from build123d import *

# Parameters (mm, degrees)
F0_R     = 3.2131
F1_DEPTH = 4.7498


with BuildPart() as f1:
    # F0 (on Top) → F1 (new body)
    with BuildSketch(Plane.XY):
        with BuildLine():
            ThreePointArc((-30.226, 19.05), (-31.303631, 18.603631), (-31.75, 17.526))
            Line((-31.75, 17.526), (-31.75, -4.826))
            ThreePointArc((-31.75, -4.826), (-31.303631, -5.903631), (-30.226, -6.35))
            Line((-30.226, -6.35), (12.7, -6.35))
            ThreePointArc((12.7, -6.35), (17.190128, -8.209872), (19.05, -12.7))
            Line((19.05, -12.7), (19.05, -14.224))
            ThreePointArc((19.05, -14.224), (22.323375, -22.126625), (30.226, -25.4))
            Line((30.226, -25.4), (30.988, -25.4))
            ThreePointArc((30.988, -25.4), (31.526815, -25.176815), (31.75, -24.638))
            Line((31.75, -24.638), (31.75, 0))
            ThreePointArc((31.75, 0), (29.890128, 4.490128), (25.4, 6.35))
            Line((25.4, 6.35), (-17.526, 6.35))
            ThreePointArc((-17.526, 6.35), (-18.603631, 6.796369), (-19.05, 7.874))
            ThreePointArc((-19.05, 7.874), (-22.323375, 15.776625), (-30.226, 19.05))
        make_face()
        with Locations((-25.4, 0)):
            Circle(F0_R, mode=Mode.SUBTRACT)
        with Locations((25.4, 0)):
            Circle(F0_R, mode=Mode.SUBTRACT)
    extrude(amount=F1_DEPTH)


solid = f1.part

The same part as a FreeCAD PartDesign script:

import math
import FreeCAD as App
import Part
import Sketcher
from FreeCAD import Vector
Q = App.Units.Quantity

doc = App.newDocument("Part")
params = doc.addObject("Spreadsheet::Sheet", "Params")
for row, (alias, value) in enumerate([
    ("sketch1_radius", "0.06 in"),
    ("sketch1_radius2", "0.25 in"),
    ("sketch1_radius3", "0.4400001 in"),
    ("sketch1_radius4", "0.03 in"),
    ("sketch1_diameter", "0.253 in"),
    ("pad1_length", "0.187 in"),
], start=1):
    params.set(f"A{row}", alias)
    params.set(f"B{row}", "=" + value)
    params.setAlias(f"B{row}", alias)

body = doc.addObject("PartDesign::Body", "Body")

# Sketch on XY plane
sketch1 = doc.addObject("Sketcher::SketchObject", "Sketch")
body.addObject(sketch1)
sketch1.AttachmentSupport = (doc.XY_Plane, [""])
sketch1.MapMode = "FlatFace"
sketch1.addGeometry([
    Part.ArcOfCircle(Part.Circle(Vector(-30.2, 17.5, 0), Vector(0, 0, 1), 1.5), math.radians(90), math.radians(180)),  # 0
    Part.LineSegment(Vector(-31.8, 17.5, 0), Vector(-31.8, -4.8, 0)),  # 1
    Part.ArcOfCircle(Part.Circle(Vector(-30.2, -4.8, 0), Vector(0, 0, 1), 1.5), math.radians(180), math.radians(270)),  # 2
    Part.LineSegment(Vector(-30.2, -6.3, 0), Vector(12.7, -6.3, 0)),  # 3
    Part.ArcOfCircle(Part.Circle(Vector(12.7, -12.7, 0), Vector(0, 0, 1), 6.4), math.radians(0), math.radians(90)),  # 4
    Part.LineSegment(Vector(19.1, -12.7, 0), Vector(19.1, -14.2, 0)),  # 5
    Part.ArcOfCircle(Part.Circle(Vector(30.2, -14.2, 0), Vector(0, 0, 1), 11.2), math.radians(-180), math.radians(-90)),  # 6
    Part.LineSegment(Vector(30.2, -25.4, 0), Vector(31, -25.4, 0)),  # 7
    Part.ArcOfCircle(Part.Circle(Vector(31, -24.6, 0), Vector(0, 0, 1), 0.8), math.radians(-90), math.radians(0)),  # 8
    Part.LineSegment(Vector(31.8, -24.6, 0), Vector(31.8, 0, 0)),  # 9
    Part.ArcOfCircle(Part.Circle(Vector(25.4, 0, 0), Vector(0, 0, 1), 6.4), math.radians(0), math.radians(90)),  # 10
    Part.LineSegment(Vector(25.4, 6.3, 0), Vector(-17.5, 6.3, 0)),  # 11
    Part.ArcOfCircle(Part.Circle(Vector(-17.5, 7.9, 0), Vector(0, 0, 1), 1.5), math.radians(180), math.radians(270)),  # 12
    Part.ArcOfCircle(Part.Circle(Vector(-30.2, 7.9, 0), Vector(0, 0, 1), 11.2), math.radians(0), math.radians(90)),  # 13
    Part.Circle(Vector(-25.4, 0, 0), Vector(0, 0, 1), 3.2),  # 14
    Part.Circle(Vector(25.4, 0, 0), Vector(0, 0, 1), 3.2),  # 15
], False)
sketch1.addConstraint([
    Sketcher.Constraint("Tangent", 0, 2, 1, 1),
    Sketcher.Constraint("Tangent", 1, 2, 2, 1),
    Sketcher.Constraint("Tangent", 2, 2, 3, 1),
    Sketcher.Constraint("Tangent", 3, 2, 4, 2),
    Sketcher.Constraint("Tangent", 4, 1, 5, 1),
    Sketcher.Constraint("Tangent", 5, 2, 6, 1),
    Sketcher.Constraint("Tangent", 6, 2, 7, 1),
    Sketcher.Constraint("Tangent", 7, 2, 8, 1),
    Sketcher.Constraint("Tangent", 8, 2, 9, 1),
    Sketcher.Constraint("Tangent", 9, 2, 10, 1),
    Sketcher.Constraint("Tangent", 10, 2, 11, 1),
    Sketcher.Constraint("Tangent", 11, 2, 12, 2),
    Sketcher.Constraint("Tangent", 12, 1, 13, 1),
    Sketcher.Constraint("Tangent", 13, 2, 0, 1),
    Sketcher.Constraint("Vertical", 1),
    Sketcher.Constraint("Horizontal", 3),
    Sketcher.Constraint("Vertical", 5),
    Sketcher.Constraint("Horizontal", 7),
    Sketcher.Constraint("Vertical", 9),
    Sketcher.Constraint("Horizontal", 11),
    Sketcher.Constraint("Coincident", 15, 3, 10, 3),
    Sketcher.Constraint("Equal", 0, 2),
    Sketcher.Constraint("Equal", 4, 10),
    Sketcher.Constraint("Equal", 2, 12),
    Sketcher.Constraint("Equal", 6, 13),
    Sketcher.Constraint("Equal", 14, 15),
    Sketcher.Constraint("Symmetric", 10, 3, 14, 3, -1, 1),
    Sketcher.Constraint("PointOnObject", 10, 3, -1),
    Sketcher.Constraint("Horizontal", 12, 3, 13, 3),
    Sketcher.Constraint("Vertical", 2, 3, 13, 3),
    Sketcher.Constraint("Equal", 3, 11),
    Sketcher.Constraint("Radius", 0, Q("0.06 in")),
    Sketcher.Constraint("Radius", 4, Q("0.25 in")),
    Sketcher.Constraint("Radius", 6, Q("0.4400001 in")),
    Sketcher.Constraint("Radius", 8, Q("0.03 in")),
    Sketcher.Constraint("Diameter", 14, Q("0.253 in")),
    Sketcher.Constraint("DistanceX", -1, 1, 10, 3, Q("1 in")),
    Sketcher.Constraint("DistanceY", 6, 2, -1, 1, Q("1 in")),
    Sketcher.Constraint("DistanceX", 3, 1, 3, 2, Q("1.69 in")),
    Sketcher.Constraint("DistanceY", 1, 2, 1, 1, Q("0.88 in")),
])
sketch1.setExpression("Constraints[31]", "Params.sketch1_radius")
sketch1.setExpression("Constraints[32]", "Params.sketch1_radius2")
sketch1.setExpression("Constraints[33]", "Params.sketch1_radius3")
sketch1.setExpression("Constraints[34]", "Params.sketch1_radius4")
sketch1.setExpression("Constraints[35]", "Params.sketch1_diameter")
pad1 = doc.addObject("PartDesign::Pad", "Pad")
body.addObject(pad1)
pad1.Profile = sketch1
pad1.setExpression("Length", "Params.pad1_length")

doc.recompute()
